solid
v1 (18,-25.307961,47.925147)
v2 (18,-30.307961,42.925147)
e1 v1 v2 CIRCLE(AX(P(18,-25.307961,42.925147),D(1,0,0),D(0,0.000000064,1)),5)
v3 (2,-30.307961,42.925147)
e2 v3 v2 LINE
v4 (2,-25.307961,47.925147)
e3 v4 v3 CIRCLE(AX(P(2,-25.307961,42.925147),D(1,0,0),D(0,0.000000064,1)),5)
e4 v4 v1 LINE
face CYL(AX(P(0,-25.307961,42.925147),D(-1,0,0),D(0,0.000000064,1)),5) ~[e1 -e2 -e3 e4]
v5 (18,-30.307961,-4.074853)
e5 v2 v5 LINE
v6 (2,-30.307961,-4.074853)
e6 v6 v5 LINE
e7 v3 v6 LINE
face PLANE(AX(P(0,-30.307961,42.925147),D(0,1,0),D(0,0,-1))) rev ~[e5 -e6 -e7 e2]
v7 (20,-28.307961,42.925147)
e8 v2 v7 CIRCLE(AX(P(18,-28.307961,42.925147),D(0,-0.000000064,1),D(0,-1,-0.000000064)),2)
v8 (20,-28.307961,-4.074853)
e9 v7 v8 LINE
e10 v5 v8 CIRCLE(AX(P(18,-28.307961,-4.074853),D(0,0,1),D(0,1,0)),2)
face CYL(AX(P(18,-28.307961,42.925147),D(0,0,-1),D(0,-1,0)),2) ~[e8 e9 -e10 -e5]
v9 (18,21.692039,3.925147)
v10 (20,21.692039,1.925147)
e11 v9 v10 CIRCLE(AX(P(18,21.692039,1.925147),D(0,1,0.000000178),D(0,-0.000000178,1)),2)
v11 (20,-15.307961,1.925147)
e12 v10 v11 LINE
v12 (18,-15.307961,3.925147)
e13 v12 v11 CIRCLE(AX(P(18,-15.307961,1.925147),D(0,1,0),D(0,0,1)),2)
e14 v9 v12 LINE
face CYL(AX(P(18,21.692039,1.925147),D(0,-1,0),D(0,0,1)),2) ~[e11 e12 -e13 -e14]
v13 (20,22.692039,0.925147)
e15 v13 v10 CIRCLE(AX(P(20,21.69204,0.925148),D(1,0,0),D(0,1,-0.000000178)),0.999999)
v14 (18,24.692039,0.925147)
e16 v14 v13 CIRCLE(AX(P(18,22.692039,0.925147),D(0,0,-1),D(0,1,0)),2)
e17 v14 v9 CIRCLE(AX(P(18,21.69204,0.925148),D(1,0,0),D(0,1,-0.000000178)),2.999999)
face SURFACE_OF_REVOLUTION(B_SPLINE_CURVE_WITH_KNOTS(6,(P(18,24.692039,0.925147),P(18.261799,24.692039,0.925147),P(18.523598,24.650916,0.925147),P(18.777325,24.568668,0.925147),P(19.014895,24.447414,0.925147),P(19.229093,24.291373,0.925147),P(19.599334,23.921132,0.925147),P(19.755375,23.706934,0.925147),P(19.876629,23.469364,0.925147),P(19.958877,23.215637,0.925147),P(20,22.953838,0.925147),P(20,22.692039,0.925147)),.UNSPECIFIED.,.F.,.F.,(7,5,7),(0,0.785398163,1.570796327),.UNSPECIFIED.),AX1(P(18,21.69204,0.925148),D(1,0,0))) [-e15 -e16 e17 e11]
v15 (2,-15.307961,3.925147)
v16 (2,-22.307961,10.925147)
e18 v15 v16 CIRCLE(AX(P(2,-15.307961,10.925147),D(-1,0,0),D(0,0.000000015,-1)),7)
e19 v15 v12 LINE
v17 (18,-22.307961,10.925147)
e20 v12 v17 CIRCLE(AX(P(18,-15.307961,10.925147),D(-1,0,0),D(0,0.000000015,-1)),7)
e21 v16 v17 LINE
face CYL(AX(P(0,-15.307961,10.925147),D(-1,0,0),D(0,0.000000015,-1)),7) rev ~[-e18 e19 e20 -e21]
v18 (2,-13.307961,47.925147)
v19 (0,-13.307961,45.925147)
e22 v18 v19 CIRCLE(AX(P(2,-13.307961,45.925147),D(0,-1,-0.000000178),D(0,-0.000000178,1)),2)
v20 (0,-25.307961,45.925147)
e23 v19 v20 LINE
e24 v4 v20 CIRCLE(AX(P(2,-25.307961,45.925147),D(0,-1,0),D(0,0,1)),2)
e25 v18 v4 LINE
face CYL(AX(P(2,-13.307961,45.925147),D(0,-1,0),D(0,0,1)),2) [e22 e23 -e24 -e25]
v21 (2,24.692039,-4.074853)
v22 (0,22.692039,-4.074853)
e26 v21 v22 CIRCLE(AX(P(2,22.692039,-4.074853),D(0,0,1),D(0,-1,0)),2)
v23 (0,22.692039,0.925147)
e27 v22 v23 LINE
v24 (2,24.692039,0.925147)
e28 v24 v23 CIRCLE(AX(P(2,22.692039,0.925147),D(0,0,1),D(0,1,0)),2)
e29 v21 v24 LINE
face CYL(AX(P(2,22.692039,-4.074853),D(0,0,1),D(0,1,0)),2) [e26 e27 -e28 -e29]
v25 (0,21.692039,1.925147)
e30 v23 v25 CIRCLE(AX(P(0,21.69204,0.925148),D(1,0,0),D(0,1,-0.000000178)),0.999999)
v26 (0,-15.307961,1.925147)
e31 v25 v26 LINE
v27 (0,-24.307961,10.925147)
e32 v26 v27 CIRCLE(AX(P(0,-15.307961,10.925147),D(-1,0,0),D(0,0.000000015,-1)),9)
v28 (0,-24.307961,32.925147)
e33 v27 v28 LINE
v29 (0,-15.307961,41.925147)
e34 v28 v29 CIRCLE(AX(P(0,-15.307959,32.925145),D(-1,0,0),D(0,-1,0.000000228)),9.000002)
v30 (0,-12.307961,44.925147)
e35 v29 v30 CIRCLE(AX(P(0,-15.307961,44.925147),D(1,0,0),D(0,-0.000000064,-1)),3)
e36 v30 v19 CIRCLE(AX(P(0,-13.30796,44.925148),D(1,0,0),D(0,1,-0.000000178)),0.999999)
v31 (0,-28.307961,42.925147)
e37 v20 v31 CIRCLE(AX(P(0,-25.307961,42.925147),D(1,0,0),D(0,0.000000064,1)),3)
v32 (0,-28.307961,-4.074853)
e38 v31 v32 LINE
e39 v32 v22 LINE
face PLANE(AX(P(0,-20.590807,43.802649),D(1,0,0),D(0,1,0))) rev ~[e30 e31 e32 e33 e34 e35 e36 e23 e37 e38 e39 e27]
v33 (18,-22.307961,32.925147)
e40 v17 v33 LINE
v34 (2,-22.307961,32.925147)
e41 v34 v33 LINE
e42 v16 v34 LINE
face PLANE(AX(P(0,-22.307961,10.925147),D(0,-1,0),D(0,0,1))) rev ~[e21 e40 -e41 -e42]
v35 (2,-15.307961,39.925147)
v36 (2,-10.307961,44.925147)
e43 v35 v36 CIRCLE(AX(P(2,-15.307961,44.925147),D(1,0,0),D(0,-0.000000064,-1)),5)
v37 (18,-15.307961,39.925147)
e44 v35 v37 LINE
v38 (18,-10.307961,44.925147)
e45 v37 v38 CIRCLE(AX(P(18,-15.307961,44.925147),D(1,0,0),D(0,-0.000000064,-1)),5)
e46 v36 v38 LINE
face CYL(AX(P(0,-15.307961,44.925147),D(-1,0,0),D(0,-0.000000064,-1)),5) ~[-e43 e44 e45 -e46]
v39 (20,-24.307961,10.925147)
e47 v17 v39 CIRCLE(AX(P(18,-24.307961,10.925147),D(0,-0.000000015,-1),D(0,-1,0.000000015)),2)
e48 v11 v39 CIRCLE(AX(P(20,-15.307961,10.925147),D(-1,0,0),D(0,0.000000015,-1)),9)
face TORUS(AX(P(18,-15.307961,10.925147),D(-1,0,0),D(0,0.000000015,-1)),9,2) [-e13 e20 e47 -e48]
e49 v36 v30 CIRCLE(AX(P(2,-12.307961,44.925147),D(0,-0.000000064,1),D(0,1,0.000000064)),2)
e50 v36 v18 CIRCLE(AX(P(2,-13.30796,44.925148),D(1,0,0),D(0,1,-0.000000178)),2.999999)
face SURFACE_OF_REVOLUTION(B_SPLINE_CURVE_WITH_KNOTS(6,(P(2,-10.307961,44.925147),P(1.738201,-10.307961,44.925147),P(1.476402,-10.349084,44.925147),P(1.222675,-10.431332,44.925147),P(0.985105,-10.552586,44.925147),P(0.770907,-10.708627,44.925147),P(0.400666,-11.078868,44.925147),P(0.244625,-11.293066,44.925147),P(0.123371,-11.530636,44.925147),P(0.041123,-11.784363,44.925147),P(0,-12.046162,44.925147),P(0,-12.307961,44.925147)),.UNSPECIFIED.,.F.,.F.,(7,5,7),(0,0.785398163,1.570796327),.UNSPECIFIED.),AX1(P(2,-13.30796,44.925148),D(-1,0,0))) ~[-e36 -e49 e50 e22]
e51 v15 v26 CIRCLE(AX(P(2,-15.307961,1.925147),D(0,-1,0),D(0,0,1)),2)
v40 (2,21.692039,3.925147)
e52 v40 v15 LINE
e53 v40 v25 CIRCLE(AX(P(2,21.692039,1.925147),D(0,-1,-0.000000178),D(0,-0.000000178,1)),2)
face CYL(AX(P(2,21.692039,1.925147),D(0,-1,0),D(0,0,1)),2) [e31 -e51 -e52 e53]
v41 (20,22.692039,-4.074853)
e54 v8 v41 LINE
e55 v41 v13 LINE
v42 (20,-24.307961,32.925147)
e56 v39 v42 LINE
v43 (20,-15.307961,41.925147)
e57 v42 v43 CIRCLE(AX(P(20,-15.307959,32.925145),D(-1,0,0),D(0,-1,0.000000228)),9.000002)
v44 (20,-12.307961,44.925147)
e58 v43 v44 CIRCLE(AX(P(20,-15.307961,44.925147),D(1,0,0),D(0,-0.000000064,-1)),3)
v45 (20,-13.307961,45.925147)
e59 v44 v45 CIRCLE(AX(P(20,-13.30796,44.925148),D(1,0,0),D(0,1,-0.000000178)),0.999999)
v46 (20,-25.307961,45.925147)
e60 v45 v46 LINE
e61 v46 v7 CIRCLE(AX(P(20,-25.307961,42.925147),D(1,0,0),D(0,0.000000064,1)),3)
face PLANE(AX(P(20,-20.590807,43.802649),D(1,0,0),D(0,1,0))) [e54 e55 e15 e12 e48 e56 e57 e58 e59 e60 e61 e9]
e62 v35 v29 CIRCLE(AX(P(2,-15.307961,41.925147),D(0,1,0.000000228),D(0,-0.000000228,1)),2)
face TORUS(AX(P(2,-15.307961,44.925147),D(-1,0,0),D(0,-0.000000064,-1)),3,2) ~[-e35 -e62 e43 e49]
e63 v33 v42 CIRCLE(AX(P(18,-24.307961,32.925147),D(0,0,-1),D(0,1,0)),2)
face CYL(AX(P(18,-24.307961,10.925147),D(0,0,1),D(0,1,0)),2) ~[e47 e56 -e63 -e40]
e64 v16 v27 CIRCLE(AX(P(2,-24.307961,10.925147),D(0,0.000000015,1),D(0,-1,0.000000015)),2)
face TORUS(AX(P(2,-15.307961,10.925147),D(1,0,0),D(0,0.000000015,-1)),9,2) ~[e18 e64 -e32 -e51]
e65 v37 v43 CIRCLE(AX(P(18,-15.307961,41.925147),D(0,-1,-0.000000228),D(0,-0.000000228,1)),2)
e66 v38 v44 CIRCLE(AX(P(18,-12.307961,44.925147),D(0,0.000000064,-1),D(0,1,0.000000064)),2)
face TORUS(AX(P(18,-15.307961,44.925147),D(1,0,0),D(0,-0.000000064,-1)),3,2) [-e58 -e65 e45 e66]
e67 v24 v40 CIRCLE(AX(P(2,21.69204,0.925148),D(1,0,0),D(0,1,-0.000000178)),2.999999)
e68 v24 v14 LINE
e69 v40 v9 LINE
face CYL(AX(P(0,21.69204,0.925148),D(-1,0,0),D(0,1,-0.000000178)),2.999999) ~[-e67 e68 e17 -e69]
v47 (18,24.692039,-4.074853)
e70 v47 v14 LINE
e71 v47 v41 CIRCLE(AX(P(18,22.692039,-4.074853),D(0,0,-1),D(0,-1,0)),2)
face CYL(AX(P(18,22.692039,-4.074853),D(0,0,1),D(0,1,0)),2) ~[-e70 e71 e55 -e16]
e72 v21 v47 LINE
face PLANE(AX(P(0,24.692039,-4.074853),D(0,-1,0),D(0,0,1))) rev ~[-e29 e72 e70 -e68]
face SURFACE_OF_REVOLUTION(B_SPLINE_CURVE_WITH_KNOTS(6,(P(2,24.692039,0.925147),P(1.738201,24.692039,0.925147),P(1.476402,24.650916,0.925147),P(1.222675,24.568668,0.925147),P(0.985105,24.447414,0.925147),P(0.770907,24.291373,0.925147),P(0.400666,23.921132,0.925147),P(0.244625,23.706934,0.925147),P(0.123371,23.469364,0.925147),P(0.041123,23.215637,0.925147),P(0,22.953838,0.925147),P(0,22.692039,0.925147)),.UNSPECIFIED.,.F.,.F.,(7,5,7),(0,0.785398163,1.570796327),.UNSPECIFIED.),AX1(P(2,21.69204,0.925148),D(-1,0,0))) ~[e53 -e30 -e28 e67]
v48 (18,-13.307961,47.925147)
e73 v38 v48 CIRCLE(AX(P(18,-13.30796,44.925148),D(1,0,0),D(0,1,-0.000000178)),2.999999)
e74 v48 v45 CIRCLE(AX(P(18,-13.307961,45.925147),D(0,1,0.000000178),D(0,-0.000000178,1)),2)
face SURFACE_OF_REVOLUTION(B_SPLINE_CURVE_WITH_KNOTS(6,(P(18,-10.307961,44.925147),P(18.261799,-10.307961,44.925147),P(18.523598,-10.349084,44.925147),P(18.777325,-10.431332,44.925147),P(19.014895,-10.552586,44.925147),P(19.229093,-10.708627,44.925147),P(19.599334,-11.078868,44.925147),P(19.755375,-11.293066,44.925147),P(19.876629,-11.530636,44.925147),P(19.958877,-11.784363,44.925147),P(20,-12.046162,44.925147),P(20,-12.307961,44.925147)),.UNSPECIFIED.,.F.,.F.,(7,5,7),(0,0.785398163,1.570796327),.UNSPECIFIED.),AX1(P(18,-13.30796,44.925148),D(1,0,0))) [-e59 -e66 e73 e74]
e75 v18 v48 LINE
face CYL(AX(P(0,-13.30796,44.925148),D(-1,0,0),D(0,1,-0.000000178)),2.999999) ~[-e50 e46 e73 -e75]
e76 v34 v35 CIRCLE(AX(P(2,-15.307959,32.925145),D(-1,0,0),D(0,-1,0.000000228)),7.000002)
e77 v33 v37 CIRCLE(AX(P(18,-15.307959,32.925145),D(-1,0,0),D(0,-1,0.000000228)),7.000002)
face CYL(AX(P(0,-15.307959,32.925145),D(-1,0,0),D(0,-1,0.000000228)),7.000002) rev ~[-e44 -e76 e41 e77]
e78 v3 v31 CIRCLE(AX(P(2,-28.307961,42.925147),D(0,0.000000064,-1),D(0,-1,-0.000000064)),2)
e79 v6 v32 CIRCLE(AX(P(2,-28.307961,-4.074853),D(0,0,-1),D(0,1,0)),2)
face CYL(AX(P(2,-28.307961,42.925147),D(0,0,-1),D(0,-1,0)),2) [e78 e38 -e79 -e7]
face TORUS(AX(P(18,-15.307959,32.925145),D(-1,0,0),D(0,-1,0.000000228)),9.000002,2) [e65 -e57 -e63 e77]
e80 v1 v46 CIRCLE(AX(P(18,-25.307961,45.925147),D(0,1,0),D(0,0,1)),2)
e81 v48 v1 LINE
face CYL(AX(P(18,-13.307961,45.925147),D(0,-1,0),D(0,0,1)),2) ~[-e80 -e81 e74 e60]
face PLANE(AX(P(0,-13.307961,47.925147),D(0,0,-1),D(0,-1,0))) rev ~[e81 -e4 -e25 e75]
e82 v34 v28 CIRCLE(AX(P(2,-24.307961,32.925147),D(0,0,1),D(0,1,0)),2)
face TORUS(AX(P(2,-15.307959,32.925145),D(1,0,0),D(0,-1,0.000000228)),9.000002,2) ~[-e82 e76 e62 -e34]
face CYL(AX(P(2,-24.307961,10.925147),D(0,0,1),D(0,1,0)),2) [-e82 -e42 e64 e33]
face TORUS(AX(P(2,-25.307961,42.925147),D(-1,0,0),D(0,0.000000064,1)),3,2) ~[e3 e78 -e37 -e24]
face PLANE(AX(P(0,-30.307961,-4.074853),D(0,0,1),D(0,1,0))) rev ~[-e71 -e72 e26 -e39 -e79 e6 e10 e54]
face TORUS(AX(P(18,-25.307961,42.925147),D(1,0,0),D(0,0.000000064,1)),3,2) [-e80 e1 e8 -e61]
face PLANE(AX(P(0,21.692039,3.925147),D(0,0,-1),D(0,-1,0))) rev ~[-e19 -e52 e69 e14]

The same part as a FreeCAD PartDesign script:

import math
import FreeCAD as App
import Part
import Sketcher
Q = App.Units.Quantity


def edges_at(feature, points):
    """Names of the edges that pass closest to the given points."""
    edges = feature.Shape.Edges
    near = lambda p: min(range(len(edges)), key=lambda i: edges[i].distToShape(Part.Vertex(*p))[0])
    return sorted({f"Edge{near(p) + 1}" for p in points})

doc = App.newDocument("Part")
body = doc.addObject("PartDesign::Body", "Body")

# Sketch on YZ plane
sketch1 = body.newObject("Sketcher::SketchObject", "Sketch")
sketch1.AttachmentSupport = (doc.getObject("YZ_Plane"), [""])
sketch1.MapMode = "FlatFace"
sketch1.addGeometry([
    Part.LineSegment(App.Vector(-30.3, 42.9, 0), App.Vector(-30.3, -4.1, 0)),  # 0
    Part.LineSegment(App.Vector(-30.3, -4.1, 0), App.Vector(24.7, -4.1, 0)),  # 1
    Part.LineSegment(App.Vector(24.7, -4.1, 0), App.Vector(24.7, 0.9, 0)),  # 2
    Part.ArcOfCircle(Part.Circle(App.Vector(21.7, 0.9, 0), App.Vector(0, 0, 1), 3), math.radians(0), math.radians(90)),  # 3
    Part.LineSegment(App.Vector(21.7, 3.9, 0), App.Vector(-15.3, 3.9, 0)),  # 4
    Part.ArcOfCircle(Part.Circle(App.Vector(-15.3, 10.9, 0), App.Vector(0, 0, 1), 7), math.radians(180), math.radians(270)),  # 5
    Part.LineSegment(App.Vector(-22.3, 10.9, 0), App.Vector(-22.3, 32.9, 0)),  # 6
    Part.ArcOfCircle(Part.Circle(App.Vector(-15.3, 32.9, 0), App.Vector(0, 0, 1), 7), math.radians(90), math.radians(180)),  # 7
    Part.ArcOfCircle(Part.Circle(App.Vector(-15.3, 44.9, 0), App.Vector(0, 0, 1), 5), math.radians(-90), math.radians(0)),  # 8
    Part.ArcOfCircle(Part.Circle(App.Vector(-13.3, 44.9, 0), App.Vector(0, 0, 1), 3), math.radians(0), math.radians(90)),  # 9
    Part.LineSegment(App.Vector(-13.3, 47.9, 0), App.Vector(-25.3, 47.9, 0)),  # 10
    Part.ArcOfCircle(Part.Circle(App.Vector(-25.3, 42.9, 0), App.Vector(0, 0, 1), 5), math.radians(90), math.radians(180)),  # 11
], False)
sketch1.addConstraint([
    Sketcher.Constraint("Coincident", 0, 2, 1, 1),
    Sketcher.Constraint("Coincident", 1, 2, 2, 1),
    Sketcher.Constraint("Tangent", 2, 2, 3, 1),
    Sketcher.Constraint("Tangent", 3, 2, 4, 1),
    Sketcher.Constraint("Tangent", 4, 2, 5, 2),
    Sketcher.Constraint("Tangent", 5, 1, 6, 1),
    Sketcher.Constraint("Tangent", 6, 2, 7, 2),
    Sketcher.Constraint("Tangent", 7, 1, 8, 1),
    Sketcher.Constraint("Tangent", 8, 2, 9, 1),
    Sketcher.Constraint("Tangent", 9, 2, 10, 1),
    Sketcher.Constraint("Tangent", 10, 2, 11, 1),
    Sketcher.Constraint("Tangent", 11, 2, 0, 1),
    Sketcher.Constraint("Vertical", 0),
    Sketcher.Constraint("Horizontal", 1),
    Sketcher.Constraint("Vertical", 2),
    Sketcher.Constraint("Horizontal", 4),
    Sketcher.Constraint("Vertical", 6),
    Sketcher.Constraint("Horizontal", 10),
    Sketcher.Constraint("Equal", 5, 7),
    Sketcher.Constraint("Equal", 3, 9),
    Sketcher.Constraint("Equal", 8, 11),
    Sketcher.Constraint("Horizontal", 8, 3, 9, 3),
    Sketcher.Constraint("Vertical", 7, 3, 8, 3),
    Sketcher.Constraint("Radius", 3, Q("2.999999 mm")),
    Sketcher.Constraint("Radius", 5, Q("7 mm")),
    Sketcher.Constraint("Radius", 8, Q("5 mm")),
    Sketcher.Constraint("DistanceX", 1, 1, 1, 2, Q("55 mm")),
    Sketcher.Constraint("DistanceX", 4, 2, 4, 1, Q("37 mm")),
    Sketcher.Constraint("DistanceY", 0, 2, 0, 1, Q("47 mm")),
    Sketcher.Constraint("DistanceY", 2, 1, 2, 2, Q("5 mm")),
    Sketcher.Constraint("DistanceX", -1, 1, 3, 3, Q("21.69204 mm")),
    Sketcher.Constraint("DistanceY", -1, 1, 3, 3, Q("0.925148 mm")),
])
pad1 = body.newObject("PartDesign::Pad", "Pad")
pad1.Profile = sketch1
pad1.Length = 20
doc.recompute()

fillet = body.newObject("PartDesign::Fillet", "Fillet")
fillet.Base = (pad1, edges_at(pad1, [
    (20, 3.192, 3.925),
    (20, -20.258, 5.975),
    (20, -22.308, 21.925),
    (20, -20.258, 37.875),
    (20, -11.772, 41.39),
    (20, 23.813, 3.046),
    (20, -11.187, 47.046),
    (20, -19.308, 47.925),
    (20, -28.843, 46.461),
    (20, 24.692, -1.575),
    (20, -30.308, 19.425),
    (0, 24.692, -1.575),
    (0, 23.813, 3.046),
]))
fillet.Radius = 2

doc.recompute()
